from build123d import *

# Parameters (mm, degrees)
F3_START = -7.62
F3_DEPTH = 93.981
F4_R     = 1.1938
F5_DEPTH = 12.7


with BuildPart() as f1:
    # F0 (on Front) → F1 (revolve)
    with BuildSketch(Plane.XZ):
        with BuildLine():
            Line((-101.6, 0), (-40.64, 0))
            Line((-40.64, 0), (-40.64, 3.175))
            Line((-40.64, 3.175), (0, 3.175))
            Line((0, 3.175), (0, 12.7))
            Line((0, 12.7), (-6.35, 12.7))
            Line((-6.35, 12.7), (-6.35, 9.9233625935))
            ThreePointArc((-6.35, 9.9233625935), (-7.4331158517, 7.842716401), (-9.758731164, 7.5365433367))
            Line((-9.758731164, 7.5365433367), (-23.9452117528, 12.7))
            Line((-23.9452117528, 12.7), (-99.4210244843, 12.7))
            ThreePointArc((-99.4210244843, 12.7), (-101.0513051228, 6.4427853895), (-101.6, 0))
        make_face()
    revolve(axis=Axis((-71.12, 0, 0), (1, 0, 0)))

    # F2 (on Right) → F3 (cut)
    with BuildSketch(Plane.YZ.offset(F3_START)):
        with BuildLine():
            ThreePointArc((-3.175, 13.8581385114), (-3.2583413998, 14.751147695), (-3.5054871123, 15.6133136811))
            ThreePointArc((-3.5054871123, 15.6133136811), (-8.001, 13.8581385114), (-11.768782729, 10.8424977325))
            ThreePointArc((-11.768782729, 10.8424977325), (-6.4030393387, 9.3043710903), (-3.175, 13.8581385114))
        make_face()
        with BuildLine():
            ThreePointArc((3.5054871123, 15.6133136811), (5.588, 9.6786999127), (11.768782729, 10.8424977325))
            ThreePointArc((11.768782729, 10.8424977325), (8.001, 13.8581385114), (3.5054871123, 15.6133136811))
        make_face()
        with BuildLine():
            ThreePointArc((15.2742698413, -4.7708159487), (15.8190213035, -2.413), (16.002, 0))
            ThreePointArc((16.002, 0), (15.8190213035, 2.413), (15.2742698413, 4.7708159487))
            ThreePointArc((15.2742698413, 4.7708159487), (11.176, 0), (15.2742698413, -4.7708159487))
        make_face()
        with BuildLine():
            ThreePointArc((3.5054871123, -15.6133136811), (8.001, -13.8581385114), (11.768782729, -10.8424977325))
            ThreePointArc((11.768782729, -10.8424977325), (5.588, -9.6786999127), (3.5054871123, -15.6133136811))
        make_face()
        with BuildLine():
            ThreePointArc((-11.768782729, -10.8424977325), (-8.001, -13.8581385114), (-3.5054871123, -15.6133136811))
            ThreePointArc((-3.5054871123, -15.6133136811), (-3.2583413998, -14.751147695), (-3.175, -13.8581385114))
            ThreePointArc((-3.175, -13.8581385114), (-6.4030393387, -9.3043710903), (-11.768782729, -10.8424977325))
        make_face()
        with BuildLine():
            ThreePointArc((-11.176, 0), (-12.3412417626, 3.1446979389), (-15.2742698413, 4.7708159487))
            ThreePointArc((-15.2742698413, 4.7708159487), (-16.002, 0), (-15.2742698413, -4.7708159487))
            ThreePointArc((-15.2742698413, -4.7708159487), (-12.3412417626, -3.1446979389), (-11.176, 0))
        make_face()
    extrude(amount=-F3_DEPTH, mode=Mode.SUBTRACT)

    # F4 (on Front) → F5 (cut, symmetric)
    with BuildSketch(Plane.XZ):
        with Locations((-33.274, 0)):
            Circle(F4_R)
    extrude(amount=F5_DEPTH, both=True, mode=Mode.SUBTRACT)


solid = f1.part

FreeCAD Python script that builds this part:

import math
import FreeCAD as App
import Part
import Sketcher

V = App.Vector
Q = App.Units.Quantity

doc = App.newDocument("Part")
body = doc.addObject("PartDesign::Body", "Body")

sketch1 = body.newObject("Sketcher::SketchObject", "Sketch")
sketch1.AttachmentSupport = (doc.getObject("XZ_Plane"), [""])
sketch1.MapMode = "FlatFace"
sketch1.addGeometry(Part.LineSegment(V(-101.6, 0, 0), V(-40.6, 0, 0)), False)
sketch1.addGeometry(Part.LineSegment(V(-40.6, 0, 0), V(-40.6, 3.2, 0)), False)
sketch1.addGeometry(Part.LineSegment(V(-40.6, 3.2, 0), V(0, 3.2, 0)), False)
sketch1.addGeometry(Part.LineSegment(V(0, 3.2, 0), V(0, 12.7, 0)), False)
sketch1.addGeometry(Part.LineSegment(V(0, 12.7, 0), V(-6.3, 12.7, 0)), False)
sketch1.addGeometry(Part.LineSegment(V(-6.3, 12.7, 0), V(-6.3, 9.9, 0)), False)
sketch1.addGeometry(Part.ArcOfCircle(Part.Circle(V(-8.9, 9.9, 0), V(0, 0, 1), 2.5), math.radians(-110), math.radians(0)), False)
sketch1.addGeometry(Part.LineSegment(V(-9.8, 7.5, 0), V(-23.9, 12.7, 0)), False)
sketch1.addGeometry(Part.LineSegment(V(-23.9, 12.7, 0), V(-99.4, 12.7, 0)), False)
sketch1.addGeometry(Part.ArcOfCircle(Part.Circle(V(-63.5, 0, 0), V(0, 0, 1), 38.1), math.radians(160.53), math.radians(180)), False)
sketch1.addConstraint(Sketcher.Constraint("Coincident", 0, 2, 1, 1))
sketch1.addConstraint(Sketcher.Constraint("Coincident", 1, 2, 2, 1))
sketch1.addConstraint(Sketcher.Constraint("Coincident", 2, 2, 3, 1))
sketch1.addConstraint(Sketcher.Constraint("Coincident", 3, 2, 4, 1))
sketch1.addConstraint(Sketcher.Constraint("Coincident", 4, 2, 5, 1))
sketch1.addConstraint(Sketcher.Constraint("Tangent", 5, 2, 6, 2))
sketch1.addConstraint(Sketcher.Constraint("Tangent", 6, 1, 7, 1))
sketch1.addConstraint(Sketcher.Constraint("Coincident", 7, 2, 8, 1))
sketch1.addConstraint(Sketcher.Constraint("Coincident", 8, 2, 9, 1))
sketch1.addConstraint(Sketcher.Constraint("Coincident", 9, 2, 0, 1))
sketch1.addConstraint(Sketcher.Constraint("Horizontal", 0))
sketch1.addConstraint(Sketcher.Constraint("Vertical", 1))
sketch1.addConstraint(Sketcher.Constraint("Horizontal", 2))
sketch1.addConstraint(Sketcher.Constraint("Vertical", 3))
sketch1.addConstraint(Sketcher.Constraint("Horizontal", 4))
sketch1.addConstraint(Sketcher.Constraint("Vertical", 5))
sketch1.addConstraint(Sketcher.Constraint("Horizontal", 8))
sketch1.addConstraint(Sketcher.Constraint("PointOnObject", 9, 3, -1))
sketch1.addConstraint(Sketcher.Constraint("PointOnObject", 0, 2, -1))
sketch1.addConstraint(Sketcher.Constraint("PointOnObject", 2, 2, -2))
sketch1.addConstraint(Sketcher.Constraint("Horizontal", 4, 2, 7, 2))
sketch1.addConstraint(Sketcher.Constraint("Radius", 6, Q("0.1 in")))
sketch1.addConstraint(Sketcher.Constraint("Radius", 9, Q("1.5 in")))
sketch1.addConstraint(Sketcher.Constraint("DistanceX", 0, 1, 0, 2, Q("2.4 in")))
sketch1.addConstraint(Sketcher.Constraint("DistanceX", 2, 1, 2, 2, Q("1.6 in")))
sketch1.addConstraint(Sketcher.Constraint("Angle", 7, Q("160 deg")))
sketch1.addConstraint(Sketcher.Constraint("DistanceX", 4, 2, 4, 1, Q("0.25 in")))
sketch1.addConstraint(Sketcher.Constraint("DistanceY", -1, 1, 3, 2, Q("0.5 in")))
sketch1.addConstraint(Sketcher.Constraint("DistanceY", 1, 1, 1, 2, Q("0.125 in")))
sketch1.addConstraint(Sketcher.Constraint("DistanceX", 8, 2, 8, 1, 75.475813))
revolution = body.newObject("PartDesign::Revolution", "Revolution")
revolution.Profile = sketch1
revolution.ReferenceAxis = (sketch1, ["H_Axis"])
revolution.Angle = 360

sketch2 = body.newObject("Sketcher::SketchObject", "Sketch001")
sketch2.AttachmentSupport = (doc.getObject("YZ_Plane"), [""])
sketch2.MapMode = "FlatFace"
sketch2.AttachmentOffset = App.Placement(V(0, 0, -0.3 * 25.4), App.Rotation())
sketch2.addGeometry(Part.ArcOfCircle(Part.Circle(V(-8, 13.9, 0), V(0, 0, 1), 4.8), math.radians(0), math.radians(21)), False)
sketch2.addGeometry(Part.ArcOfCircle(Part.Circle(V(0, 0, 0), V(0, 0, 1), 16), math.radians(103), math.radians(137)), False)
sketch2.addGeometry(Part.ArcOfCircle(Part.Circle(V(-8, 13.9, 0), V(0, 0, 1), 4.8), math.radians(-141), math.radians(0)), False)
sketch2.addGeometry(Part.ArcOfCircle(Part.Circle(V(8, 13.9, 0), V(0, 0, 1), 4.8), math.radians(159), math.radians(321)), False)
sketch2.addGeometry(Part.ArcOfCircle(Part.Circle(V(0, 0, 0), V(0, 0, 1), 16), math.radians(43), math.radians(77)), False)
sketch2.addGeometry(Part.ArcOfCircle(Part.Circle(V(0, 0, 0), V(0, 0, 1), 16), math.radians(-17.35), math.radians(0)), False)
sketch2.addGeometry(Part.ArcOfCircle(Part.Circle(V(0, 0, 0), V(0, 0, 1), 16), math.radians(0), math.radians(17.35)), False)
sketch2.addGeometry(Part.ArcOfCircle(Part.Circle(V(16, 0, 0), V(0, 0, 1), 4.8), math.radians(99), math.radians(261)), False)
sketch2.addGeometry(Part.ArcOfCircle(Part.Circle(V(0, 0, 0), V(0, 0, 1), 16), math.radians(-77), math.radians(-43)), False)
sketch2.addGeometry(Part.ArcOfCircle(Part.Circle(V(8, -13.9, 0), V(0, 0, 1), 4.8), math.radians(39), math.radians(201)), False)
sketch2.addGeometry(Part.ArcOfCircle(Part.Circle(V(0, 0, 0), V(0, 0, 1), 16), math.radians(-137), math.radians(-103)), False)
sketch2.addGeometry(Part.ArcOfCircle(Part.Circle(V(-8, -13.9, 0), V(0, 0, 1), 4.8), math.radians(-21), math.radians(0)), False)
sketch2.addGeometry(Part.ArcOfCircle(Part.Circle(V(-8, -13.9, 0), V(0, 0, 1), 4.8), math.radians(0), math.radians(141)), False)
sketch2.addGeometry(Part.ArcOfCircle(Part.Circle(V(-16, 0, 0), V(0, 0, 1), 4.8), math.radians(0), math.radians(81)), False)
sketch2.addGeometry(Part.ArcOfCircle(Part.Circle(V(0, 0, 0), V(0, 0, 1), 16), math.radians(163), math.radians(197)), False)
sketch2.addGeometry(Part.ArcOfCircle(Part.Circle(V(-16, 0, 0), V(0, 0, 1), 4.8), math.radians(-81), math.radians(0)), False)
sketch2.addConstraint(Sketcher.Constraint("Coincident", 0, 2, 1, 1))
sketch2.addConstraint(Sketcher.Constraint("Coincident", 1, 2, 2, 1))
sketch2.addConstraint(Sketcher.Constraint("Tangent", 2, 2, 0, 1))
sketch2.addConstraint(Sketcher.Constraint("Coincident", 3, 1, 4, 2))
sketch2.addConstraint(Sketcher.Constraint("Coincident", 4, 1, 3, 2))
sketch2.addConstraint(Sketcher.Constraint("Tangent", 5, 2, 6, 1))
sketch2.addConstraint(Sketcher.Constraint("Coincident", 6, 2, 7, 1))
sketch2.addConstraint(Sketcher.Constraint("Coincident", 7, 2, 5, 1))
sketch2.addConstraint(Sketcher.Constraint("Coincident", 8, 1, 9, 2))
sketch2.addConstraint(Sketcher.Constraint("Coincident", 9, 1, 8, 2))
sketch2.addConstraint(Sketcher.Constraint("Coincident", 10, 2, 11, 1))
sketch2.addConstraint(Sketcher.Constraint("Tangent", 11, 2, 12, 1))
sketch2.addConstraint(Sketcher.Constraint("Coincident", 12, 2, 10, 1))
sketch2.addConstraint(Sketcher.Constraint("Coincident", 13, 2, 14, 1))
sketch2.addConstraint(Sketcher.Constraint("Coincident", 14, 2, 15, 1))
sketch2.addConstraint(Sketcher.Constraint("Tangent", 15, 2, 13, 1))
sketch2.addConstraint(Sketcher.Constraint("Coincident", 1, 3, -1, 1))
sketch2.addConstraint(Sketcher.Constraint("Coincident", 4, 3, -1, 1))
sketch2.addConstraint(Sketcher.Constraint("Coincident", 5, 3, -1, 1))
sketch2.addConstraint(Sketcher.Constraint("Coincident", 8, 3, -1, 1))
sketch2.addConstraint(Sketcher.Constraint("Coincident", 10, 3, -1, 1))
sketch2.addConstraint(Sketcher.Constraint("Coincident", 14, 3, -1, 1))
sketch2.addConstraint(Sketcher.Constraint("Coincident", 5, 2, 7, 3))
sketch2.addConstraint(Sketcher.Constraint("Equal", 0, 2))
sketch2.addConstraint(Sketcher.Constraint("Equal", 2, 3))
sketch2.addConstraint(Sketcher.Constraint("Equal", 1, 4))
sketch2.addConstraint(Sketcher.Constraint("Equal", 4, 5))
sketch2.addConstraint(Sketcher.Constraint("Equal", 5, 6))
sketch2.addConstraint(Sketcher.Constraint("Equal", 3, 7))
sketch2.addConstraint(Sketcher.Constraint("Equal", 6, 8))
sketch2.addConstraint(Sketcher.Constraint("Equal", 7, 9))
sketch2.addConstraint(Sketcher.Constraint("Equal", 8, 10))
sketch2.addConstraint(Sketcher.Constraint("Equal", 9, 11))
sketch2.addConstraint(Sketcher.Constraint("Equal", 11, 12))
sketch2.addConstraint(Sketcher.Constraint("Equal", 12, 13))
sketch2.addConstraint(Sketcher.Constraint("Equal", 10, 14))
sketch2.addConstraint(Sketcher.Constraint("Equal", 13, 15))
sketch2.addConstraint(Sketcher.Constraint("Symmetric", 0, 3, 9, 3, -1, 1))
sketch2.addConstraint(Sketcher.Constraint("Symmetric", 3, 3, 11, 3, -1, 1))
sketch2.addConstraint(Sketcher.Constraint("Symmetric", 7, 3, 13, 3, -1, 1))
sketch2.addConstraint(Sketcher.Constraint("Symmetric", 0, 3, 3, 3, -2))
sketch2.addConstraint(Sketcher.Constraint("PointOnObject", 7, 3, -1))
sketch2.addConstraint(Sketcher.Constraint("PointOnObject", 15, 2, -1))
sketch2.addConstraint(Sketcher.Constraint("Horizontal", 3, 3, 2, 2))
sketch2.addConstraint(Sketcher.Constraint("Horizontal", 12, 3, 11, 2))
sketch2.addConstraint(Sketcher.Constraint("Radius", 0, Q("0.19 in")))
sketch2.addConstraint(Sketcher.Constraint("Radius", 1, Q("0.63 in")))
sketch2.addConstraint(Sketcher.Constraint("DistanceX", 0, 3, 3, 3, Q("0.63 in")))
sketch2.addConstraint(Sketcher.Constraint("DistanceY", -1, 1, 0, 3, 13.858139))
pocket1 = body.newObject("PartDesign::Pocket", "Pocket")
pocket1.Profile = sketch2
pocket1.Length = 93.981

sketch3 = body.newObject("Sketcher::SketchObject", "Sketch002")
sketch3.AttachmentSupport = (doc.getObject("XZ_Plane"), [""])
sketch3.MapMode = "FlatFace"
sketch3.addGeometry(Part.Circle(V(-33.3, 0, 0), V(0, 0, 1), 1.2), False)
sketch3.addConstraint(Sketcher.Constraint("PointOnObject", 0, 3, -1))
sketch3.addConstraint(Sketcher.Constraint("Diameter", 0, Q("0.094 in")))
sketch3.addConstraint(Sketcher.Constraint("DistanceX", 0, 3, -1, 1, Q("1.31 in")))
pocket2 = body.newObject("PartDesign::Pocket", "Pocket001")
pocket2.Profile = sketch3
pocket2.Length = Q("1 in")
pocket2.Midplane = True

doc.recompute()
